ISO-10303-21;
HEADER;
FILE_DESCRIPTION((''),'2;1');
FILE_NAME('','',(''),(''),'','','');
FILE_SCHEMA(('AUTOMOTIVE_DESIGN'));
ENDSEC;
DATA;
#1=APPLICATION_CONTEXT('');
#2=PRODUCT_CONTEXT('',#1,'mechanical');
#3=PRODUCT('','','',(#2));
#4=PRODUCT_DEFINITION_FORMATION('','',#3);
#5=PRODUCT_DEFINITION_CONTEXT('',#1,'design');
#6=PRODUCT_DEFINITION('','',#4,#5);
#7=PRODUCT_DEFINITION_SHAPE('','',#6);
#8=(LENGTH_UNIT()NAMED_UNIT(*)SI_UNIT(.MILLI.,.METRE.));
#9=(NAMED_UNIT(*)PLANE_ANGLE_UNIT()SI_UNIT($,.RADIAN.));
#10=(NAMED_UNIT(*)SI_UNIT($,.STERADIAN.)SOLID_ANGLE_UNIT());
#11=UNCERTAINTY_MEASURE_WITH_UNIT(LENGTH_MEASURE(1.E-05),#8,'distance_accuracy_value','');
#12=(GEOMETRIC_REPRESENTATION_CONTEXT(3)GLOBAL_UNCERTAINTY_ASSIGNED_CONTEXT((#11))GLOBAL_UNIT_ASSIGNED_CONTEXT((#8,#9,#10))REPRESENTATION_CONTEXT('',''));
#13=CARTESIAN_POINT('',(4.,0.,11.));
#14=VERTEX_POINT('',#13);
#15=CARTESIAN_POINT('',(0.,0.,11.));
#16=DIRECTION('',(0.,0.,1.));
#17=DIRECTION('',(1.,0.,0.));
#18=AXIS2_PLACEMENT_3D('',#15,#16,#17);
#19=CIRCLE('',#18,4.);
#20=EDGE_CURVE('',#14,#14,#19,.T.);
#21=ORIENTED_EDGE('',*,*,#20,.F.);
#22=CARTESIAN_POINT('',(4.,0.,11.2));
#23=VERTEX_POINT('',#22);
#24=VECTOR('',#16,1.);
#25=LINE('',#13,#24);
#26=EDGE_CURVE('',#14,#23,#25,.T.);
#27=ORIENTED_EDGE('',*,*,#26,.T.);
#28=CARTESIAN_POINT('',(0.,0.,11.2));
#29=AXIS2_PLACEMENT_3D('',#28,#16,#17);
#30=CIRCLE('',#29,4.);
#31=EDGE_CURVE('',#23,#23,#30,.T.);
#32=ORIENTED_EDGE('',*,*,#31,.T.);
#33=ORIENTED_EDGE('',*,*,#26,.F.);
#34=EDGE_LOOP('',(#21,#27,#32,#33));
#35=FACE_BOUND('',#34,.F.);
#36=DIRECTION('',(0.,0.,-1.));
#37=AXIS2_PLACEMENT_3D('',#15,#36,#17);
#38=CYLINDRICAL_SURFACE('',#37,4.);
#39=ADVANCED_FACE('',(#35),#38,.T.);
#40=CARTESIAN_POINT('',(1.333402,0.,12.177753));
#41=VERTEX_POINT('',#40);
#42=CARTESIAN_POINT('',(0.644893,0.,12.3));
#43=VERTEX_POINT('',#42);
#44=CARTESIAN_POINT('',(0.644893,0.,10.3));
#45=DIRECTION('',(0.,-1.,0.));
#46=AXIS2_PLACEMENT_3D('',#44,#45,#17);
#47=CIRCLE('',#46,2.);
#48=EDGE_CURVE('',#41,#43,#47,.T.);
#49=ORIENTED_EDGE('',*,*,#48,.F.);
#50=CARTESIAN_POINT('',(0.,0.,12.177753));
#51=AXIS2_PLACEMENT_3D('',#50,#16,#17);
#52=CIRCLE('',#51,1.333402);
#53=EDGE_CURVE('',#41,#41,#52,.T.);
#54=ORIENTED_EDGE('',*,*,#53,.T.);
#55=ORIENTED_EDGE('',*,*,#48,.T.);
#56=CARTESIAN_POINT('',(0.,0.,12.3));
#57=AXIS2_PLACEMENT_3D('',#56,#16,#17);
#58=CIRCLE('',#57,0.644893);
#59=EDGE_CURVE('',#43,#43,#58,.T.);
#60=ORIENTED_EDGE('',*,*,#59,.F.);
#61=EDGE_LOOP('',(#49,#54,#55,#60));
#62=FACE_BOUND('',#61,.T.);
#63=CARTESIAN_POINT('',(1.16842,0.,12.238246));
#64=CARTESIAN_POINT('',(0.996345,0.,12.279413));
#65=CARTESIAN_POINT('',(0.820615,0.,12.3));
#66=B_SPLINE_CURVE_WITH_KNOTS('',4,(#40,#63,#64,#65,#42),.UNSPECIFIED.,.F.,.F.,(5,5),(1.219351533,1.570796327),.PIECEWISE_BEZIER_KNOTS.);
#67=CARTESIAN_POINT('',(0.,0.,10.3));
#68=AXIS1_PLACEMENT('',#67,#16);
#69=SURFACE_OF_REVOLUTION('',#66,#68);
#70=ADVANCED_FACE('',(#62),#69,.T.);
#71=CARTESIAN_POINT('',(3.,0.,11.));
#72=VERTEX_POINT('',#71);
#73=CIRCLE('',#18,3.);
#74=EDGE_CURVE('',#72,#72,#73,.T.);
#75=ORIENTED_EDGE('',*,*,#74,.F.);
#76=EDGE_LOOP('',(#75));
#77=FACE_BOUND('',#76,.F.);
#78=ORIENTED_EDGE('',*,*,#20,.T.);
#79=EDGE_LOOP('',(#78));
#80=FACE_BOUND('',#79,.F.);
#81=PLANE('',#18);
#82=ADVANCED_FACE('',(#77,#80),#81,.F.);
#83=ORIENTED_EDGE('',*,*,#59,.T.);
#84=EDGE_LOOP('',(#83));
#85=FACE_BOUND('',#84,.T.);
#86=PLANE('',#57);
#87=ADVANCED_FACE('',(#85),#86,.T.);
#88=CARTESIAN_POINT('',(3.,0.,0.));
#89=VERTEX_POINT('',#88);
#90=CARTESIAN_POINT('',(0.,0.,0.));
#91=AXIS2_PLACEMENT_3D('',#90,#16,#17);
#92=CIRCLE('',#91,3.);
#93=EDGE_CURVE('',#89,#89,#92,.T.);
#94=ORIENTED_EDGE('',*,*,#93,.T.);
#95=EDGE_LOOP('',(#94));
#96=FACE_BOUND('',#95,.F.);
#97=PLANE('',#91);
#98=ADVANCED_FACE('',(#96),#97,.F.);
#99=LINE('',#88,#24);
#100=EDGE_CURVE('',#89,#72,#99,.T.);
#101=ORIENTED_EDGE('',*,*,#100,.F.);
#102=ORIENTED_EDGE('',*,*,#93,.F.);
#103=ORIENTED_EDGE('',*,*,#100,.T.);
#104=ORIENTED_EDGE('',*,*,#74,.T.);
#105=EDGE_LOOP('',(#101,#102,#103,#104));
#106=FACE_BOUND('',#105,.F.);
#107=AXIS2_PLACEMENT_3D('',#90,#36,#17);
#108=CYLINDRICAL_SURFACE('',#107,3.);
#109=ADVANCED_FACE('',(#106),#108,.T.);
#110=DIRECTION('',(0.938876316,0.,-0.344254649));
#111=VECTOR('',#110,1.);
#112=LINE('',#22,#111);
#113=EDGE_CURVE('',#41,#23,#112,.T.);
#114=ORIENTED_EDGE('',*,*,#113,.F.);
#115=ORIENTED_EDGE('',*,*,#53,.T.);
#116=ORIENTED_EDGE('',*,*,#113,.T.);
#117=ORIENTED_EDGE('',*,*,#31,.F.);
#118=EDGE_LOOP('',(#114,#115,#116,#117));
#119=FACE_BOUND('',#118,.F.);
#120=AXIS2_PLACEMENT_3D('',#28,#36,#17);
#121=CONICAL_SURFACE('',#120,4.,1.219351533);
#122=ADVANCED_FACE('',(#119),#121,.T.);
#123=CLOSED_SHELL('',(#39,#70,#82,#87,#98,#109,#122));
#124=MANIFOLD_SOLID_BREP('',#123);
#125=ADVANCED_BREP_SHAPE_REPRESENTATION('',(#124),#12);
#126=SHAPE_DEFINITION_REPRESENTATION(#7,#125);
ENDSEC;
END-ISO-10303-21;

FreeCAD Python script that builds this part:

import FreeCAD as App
import Part
import Sketcher

V = App.Vector
Q = App.Units.Quantity


def edges_at(feature, points):
    """Names of the edges that pass closest to the given points."""
    edges = feature.Shape.Edges
    near = lambda p: min(range(len(edges)), key=lambda i: edges[i].distToShape(Part.Vertex(*p))[0])
    return sorted({f"Edge{near(p) + 1}" for p in points})

doc = App.newDocument("Part")
body = doc.addObject("PartDesign::Body", "Body")

# Sketch on XY plane
sketch1 = body.newObject("Sketcher::SketchObject", "Sketch")
sketch1.AttachmentSupport = (doc.getObject("XY_Plane"), [""])
sketch1.MapMode = "FlatFace"
sketch1.addGeometry(Part.Circle(V(0, 0, 0), V(0, 0, 1), 3), False)
sketch1.addConstraint([
    Sketcher.Constraint("Coincident", 0, 3, -1, 1),
    Sketcher.Constraint("Diameter", 0, Q("6 mm")),
])
pad1 = body.newObject("PartDesign::Pad", "Pad")
pad1.Profile = sketch1
pad1.Length = 11

# Sketch on XY plane
sketch2 = body.newObject("Sketcher::SketchObject", "Sketch001")
sketch2.AttachmentSupport = (doc.getObject("XY_Plane"), [""])
sketch2.MapMode = "FlatFace"
sketch2.AttachmentOffset = App.Placement(V(0, 0, 11), App.Rotation())
sketch2.addGeometry(Part.Circle(V(0, 0, 0), V(0, 0, 1), 4), False)
sketch2.addConstraint([
    Sketcher.Constraint("Coincident", 0, 3, -1, 1),
    Sketcher.Constraint("Diameter", 0, Q("8 mm")),
])
pad2 = body.newObject("PartDesign::Pad", "Pad001")
pad2.Profile = sketch2
pad2.Length = 1.3
doc.recompute()

chamfer = body.newObject("PartDesign::Chamfer", "Chamfer")
chamfer.Base = (pad2, edges_at(pad2, [(-4, 0, 12.3)]))
chamfer.ChamferType = "Two distances"
chamfer.Size = 3
chamfer.Size2 = 1.1
chamfer.FlipDirection = True
doc.recompute()

fillet = body.newObject("PartDesign::Fillet", "Fillet")
fillet.Base = (chamfer, edges_at(chamfer, [(-1, 0, 12.3)]))
fillet.Radius = 2

doc.recompute()
